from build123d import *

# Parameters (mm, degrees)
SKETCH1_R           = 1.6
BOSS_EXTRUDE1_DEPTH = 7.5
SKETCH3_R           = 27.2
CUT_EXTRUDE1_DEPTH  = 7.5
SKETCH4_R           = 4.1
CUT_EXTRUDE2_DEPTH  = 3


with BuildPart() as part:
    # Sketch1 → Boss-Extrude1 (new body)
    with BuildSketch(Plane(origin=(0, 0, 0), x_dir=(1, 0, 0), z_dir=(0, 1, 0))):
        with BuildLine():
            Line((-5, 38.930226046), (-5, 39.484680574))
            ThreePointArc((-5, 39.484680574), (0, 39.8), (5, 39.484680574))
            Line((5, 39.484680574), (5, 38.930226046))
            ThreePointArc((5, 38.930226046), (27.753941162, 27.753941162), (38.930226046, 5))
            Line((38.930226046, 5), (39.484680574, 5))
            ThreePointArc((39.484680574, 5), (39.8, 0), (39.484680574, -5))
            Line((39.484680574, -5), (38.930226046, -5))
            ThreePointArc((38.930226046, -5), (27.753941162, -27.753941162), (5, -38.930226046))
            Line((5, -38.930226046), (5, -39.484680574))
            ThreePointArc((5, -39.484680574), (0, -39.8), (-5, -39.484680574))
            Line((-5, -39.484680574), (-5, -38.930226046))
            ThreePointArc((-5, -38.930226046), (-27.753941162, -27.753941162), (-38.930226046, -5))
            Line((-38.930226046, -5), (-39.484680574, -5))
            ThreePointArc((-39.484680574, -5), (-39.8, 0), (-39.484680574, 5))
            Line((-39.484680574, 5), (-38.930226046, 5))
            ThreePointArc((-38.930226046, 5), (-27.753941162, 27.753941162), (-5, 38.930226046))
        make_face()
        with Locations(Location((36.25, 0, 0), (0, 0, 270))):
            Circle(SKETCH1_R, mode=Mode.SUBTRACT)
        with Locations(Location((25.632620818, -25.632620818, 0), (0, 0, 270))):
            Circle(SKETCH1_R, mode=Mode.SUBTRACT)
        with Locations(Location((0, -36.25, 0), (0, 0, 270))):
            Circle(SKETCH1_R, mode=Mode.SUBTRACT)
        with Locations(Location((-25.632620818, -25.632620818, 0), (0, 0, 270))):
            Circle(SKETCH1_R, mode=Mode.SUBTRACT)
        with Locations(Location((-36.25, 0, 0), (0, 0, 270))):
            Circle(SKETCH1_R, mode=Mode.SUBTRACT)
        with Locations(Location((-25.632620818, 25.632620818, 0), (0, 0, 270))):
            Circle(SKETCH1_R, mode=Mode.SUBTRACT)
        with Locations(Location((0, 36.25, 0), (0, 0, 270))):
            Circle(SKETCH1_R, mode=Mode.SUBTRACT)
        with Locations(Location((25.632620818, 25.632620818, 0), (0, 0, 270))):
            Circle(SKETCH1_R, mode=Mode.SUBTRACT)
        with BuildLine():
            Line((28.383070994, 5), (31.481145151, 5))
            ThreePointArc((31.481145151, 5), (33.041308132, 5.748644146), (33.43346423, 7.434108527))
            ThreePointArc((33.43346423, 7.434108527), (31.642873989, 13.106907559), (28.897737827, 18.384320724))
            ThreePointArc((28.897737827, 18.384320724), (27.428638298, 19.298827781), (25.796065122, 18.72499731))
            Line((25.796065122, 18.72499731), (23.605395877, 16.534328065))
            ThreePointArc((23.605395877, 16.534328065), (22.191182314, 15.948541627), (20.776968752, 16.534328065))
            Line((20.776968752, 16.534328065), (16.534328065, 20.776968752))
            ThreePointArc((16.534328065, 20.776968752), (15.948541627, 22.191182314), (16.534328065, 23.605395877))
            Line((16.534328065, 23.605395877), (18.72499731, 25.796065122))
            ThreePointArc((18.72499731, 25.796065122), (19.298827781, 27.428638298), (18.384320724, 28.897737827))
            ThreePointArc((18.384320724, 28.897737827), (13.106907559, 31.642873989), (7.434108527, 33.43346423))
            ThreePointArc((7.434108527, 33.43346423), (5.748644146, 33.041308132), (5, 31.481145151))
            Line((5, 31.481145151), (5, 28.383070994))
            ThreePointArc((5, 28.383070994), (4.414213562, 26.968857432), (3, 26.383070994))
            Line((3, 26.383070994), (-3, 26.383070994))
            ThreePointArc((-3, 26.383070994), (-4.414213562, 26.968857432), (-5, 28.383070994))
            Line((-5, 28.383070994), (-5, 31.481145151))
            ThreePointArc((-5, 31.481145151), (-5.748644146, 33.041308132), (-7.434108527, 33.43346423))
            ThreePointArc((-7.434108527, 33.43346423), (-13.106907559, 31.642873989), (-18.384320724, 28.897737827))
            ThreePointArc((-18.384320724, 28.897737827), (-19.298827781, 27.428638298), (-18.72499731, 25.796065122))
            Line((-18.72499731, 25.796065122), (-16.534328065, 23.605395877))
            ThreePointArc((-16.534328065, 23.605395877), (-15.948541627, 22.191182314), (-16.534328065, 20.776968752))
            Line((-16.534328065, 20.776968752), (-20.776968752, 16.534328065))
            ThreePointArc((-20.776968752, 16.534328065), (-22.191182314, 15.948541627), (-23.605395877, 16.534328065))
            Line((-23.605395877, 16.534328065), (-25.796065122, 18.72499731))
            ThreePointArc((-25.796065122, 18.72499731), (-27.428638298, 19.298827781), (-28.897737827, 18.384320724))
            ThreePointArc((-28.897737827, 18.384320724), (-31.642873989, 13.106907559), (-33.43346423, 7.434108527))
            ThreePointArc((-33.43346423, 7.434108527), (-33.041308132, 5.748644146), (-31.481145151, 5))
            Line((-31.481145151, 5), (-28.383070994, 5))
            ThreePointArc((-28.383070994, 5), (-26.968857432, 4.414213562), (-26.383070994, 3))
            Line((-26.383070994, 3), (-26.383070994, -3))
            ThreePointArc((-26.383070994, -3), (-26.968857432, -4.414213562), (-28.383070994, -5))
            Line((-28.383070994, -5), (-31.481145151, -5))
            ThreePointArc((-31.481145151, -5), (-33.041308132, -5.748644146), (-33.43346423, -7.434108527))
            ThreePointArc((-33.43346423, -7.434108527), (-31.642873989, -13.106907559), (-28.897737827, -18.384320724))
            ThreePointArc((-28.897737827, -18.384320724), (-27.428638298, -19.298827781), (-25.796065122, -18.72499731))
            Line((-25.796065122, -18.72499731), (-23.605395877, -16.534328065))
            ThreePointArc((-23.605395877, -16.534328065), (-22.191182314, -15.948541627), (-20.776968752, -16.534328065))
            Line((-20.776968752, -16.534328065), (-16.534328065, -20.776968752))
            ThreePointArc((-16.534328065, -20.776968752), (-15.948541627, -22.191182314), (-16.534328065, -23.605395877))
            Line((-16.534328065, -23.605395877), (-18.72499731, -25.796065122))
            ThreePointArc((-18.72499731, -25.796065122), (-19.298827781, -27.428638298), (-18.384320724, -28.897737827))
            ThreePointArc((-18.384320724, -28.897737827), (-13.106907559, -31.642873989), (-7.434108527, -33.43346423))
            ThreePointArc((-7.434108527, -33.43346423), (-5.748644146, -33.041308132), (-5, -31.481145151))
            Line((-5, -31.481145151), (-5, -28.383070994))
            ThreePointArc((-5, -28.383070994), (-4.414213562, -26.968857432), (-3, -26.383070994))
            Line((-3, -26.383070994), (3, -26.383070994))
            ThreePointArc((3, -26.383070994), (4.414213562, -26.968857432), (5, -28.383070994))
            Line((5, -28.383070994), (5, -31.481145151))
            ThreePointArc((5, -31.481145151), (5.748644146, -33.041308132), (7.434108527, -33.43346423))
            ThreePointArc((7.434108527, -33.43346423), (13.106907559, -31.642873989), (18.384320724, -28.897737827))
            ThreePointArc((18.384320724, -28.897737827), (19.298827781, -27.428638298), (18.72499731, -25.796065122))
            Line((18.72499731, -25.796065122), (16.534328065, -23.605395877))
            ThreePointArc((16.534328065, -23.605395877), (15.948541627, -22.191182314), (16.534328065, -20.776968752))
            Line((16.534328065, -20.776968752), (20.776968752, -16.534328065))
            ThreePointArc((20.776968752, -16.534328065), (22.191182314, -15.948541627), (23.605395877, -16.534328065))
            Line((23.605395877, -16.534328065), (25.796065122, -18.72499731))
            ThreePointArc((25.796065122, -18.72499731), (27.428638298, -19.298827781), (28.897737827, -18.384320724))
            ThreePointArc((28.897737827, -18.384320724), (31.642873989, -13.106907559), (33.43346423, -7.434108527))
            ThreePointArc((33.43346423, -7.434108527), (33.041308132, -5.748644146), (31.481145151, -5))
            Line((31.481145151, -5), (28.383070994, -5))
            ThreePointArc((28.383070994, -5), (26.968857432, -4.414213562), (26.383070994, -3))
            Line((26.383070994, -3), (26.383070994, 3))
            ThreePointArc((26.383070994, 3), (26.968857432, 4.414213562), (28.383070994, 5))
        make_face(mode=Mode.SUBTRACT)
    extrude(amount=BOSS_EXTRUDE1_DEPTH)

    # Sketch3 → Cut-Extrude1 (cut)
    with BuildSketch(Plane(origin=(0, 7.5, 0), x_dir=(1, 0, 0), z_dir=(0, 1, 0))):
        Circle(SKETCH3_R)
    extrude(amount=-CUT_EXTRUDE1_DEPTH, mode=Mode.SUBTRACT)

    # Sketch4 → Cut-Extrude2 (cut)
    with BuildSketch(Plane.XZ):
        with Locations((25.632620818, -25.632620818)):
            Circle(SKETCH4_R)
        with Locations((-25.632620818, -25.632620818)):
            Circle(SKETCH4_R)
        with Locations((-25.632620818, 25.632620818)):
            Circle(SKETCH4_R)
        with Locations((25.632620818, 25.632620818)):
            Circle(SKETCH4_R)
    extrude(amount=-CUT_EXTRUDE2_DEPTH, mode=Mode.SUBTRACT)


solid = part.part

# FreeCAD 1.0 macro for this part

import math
import FreeCAD as App
import Part
import Sketcher

V = App.Vector
Q = App.Units.Quantity

doc = App.newDocument("Part")
body = doc.addObject("PartDesign::Body", "Body")

sketch1 = doc.addObject("Sketcher::SketchObject", "Sketch")
body.addObject(sketch1)
sketch1.AttachmentSupport = (doc.XZ_Plane, [""])
sketch1.MapMode = "FlatFace"
sketch1.addGeometry([
    Part.LineSegment(V(-5, -39.5, 0), V(-5, -38.9, 0)),
    Part.ArcOfCircle(Part.Circle(V(0, 0, 0), V(0, 0, 1), 39.2), math.radians(-173), math.radians(-97)),
    Part.LineSegment(V(-38.9, -5, 0), V(-39.5, -5, 0)),
    Part.ArcOfCircle(Part.Circle(V(0, 0, 0), V(0, 0, 1), 39.8), math.radians(172.78), math.radians(187.22)),
    Part.LineSegment(V(-39.5, 5, 0), V(-38.9, 5, 0)),
    Part.ArcOfCircle(Part.Circle(V(0, 0, 0), V(0, 0, 1), 39.2), math.radians(97), math.radians(173)),
    Part.LineSegment(V(-5, 38.9, 0), V(-5, 39.5, 0)),
    Part.ArcOfCircle(Part.Circle(V(0, 0, 0), V(0, 0, 1), 39.8), math.radians(82.78), math.radians(97.22)),
    Part.LineSegment(V(5, 39.5, 0), V(5, 38.9, 0)),
    Part.ArcOfCircle(Part.Circle(V(0, 0, 0), V(0, 0, 1), 39.2), math.radians(7), math.radians(83)),
    Part.LineSegment(V(38.9, 5, 0), V(39.5, 5, 0)),
    Part.ArcOfCircle(Part.Circle(V(0, 0, 0), V(0, 0, 1), 39.8), math.radians(-7.22), math.radians(7.22)),
    Part.LineSegment(V(39.5, -5, 0), V(38.9, -5, 0)),
    Part.ArcOfCircle(Part.Circle(V(0, 0, 0), V(0, 0, 1), 39.2), math.radians(-83), math.radians(-7)),
    Part.LineSegment(V(5, -38.9, 0), V(5, -39.5, 0)),
    Part.ArcOfCircle(Part.Circle(V(0, 0, 0), V(0, 0, 1), 39.8), math.radians(-97.22), math.radians(-82.78)),
    Part.Circle(V(25.6, 25.6, 0), V(0, 0, 1), 1.6),
    Part.Circle(V(0, 36.2, 0), V(0, 0, 1), 1.6),
    Part.Circle(V(-25.6, 25.6, 0), V(0, 0, 1), 1.6),
    Part.Circle(V(36.2, 0, 0), V(0, 0, 1), 1.6),
    Part.Circle(V(25.6, -25.6, 0), V(0, 0, 1), 1.6),
    Part.ArcOfCircle(Part.Circle(V(28.4, -3, 0), V(0, 0, 1), 2), math.radians(-180), math.radians(-90)),
    Part.LineSegment(V(26.4, -3, 0), V(26.4, 3, 0)),
    Part.ArcOfCircle(Part.Circle(V(28.4, 3, 0), V(0, 0, 1), 2), math.radians(90), math.radians(180)),
    Part.LineSegment(V(28.4, 5, 0), V(31.5, 5, 0)),
    Part.ArcOfCircle(Part.Circle(V(31.5, 7, 0), V(0, 0, 1), 2), math.radians(-90), math.radians(13)),
    Part.ArcOfCircle(Part.Circle(V(0, 0, 0), V(0, 0, 1), 34.2), math.radians(12.54), math.radians(32.46)),
    Part.ArcOfCircle(Part.Circle(V(27.2, 17.3, 0), V(0, 0, 1), 2), math.radians(32), math.radians(135)),
    Part.LineSegment(V(25.8, 18.7, 0), V(23.6, 16.5, 0)),
    Part.ArcOfCircle(Part.Circle(V(22.2, 17.9, 0), V(0, 0, 1), 2), math.radians(-135), math.radians(-45)),
    Part.LineSegment(V(20.8, 16.5, 0), V(16.5, 20.8, 0)),
    Part.ArcOfCircle(Part.Circle(V(17.9, 22.2, 0), V(0, 0, 1), 2), math.radians(135), math.radians(225)),
    Part.LineSegment(V(16.5, 23.6, 0), V(18.7, 25.8, 0)),
    Part.ArcOfCircle(Part.Circle(V(17.3, 27.2, 0), V(0, 0, 1), 2), math.radians(-45), math.radians(58)),
    Part.ArcOfCircle(Part.Circle(V(0, 0, 0), V(0, 0, 1), 34.2), math.radians(57.54), math.radians(77.46)),
    Part.ArcOfCircle(Part.Circle(V(7, 31.5, 0), V(0, 0, 1), 2), math.radians(77), math.radians(180)),
    Part.LineSegment(V(5, 31.5, 0), V(5, 28.4, 0)),
    Part.ArcOfCircle(Part.Circle(V(3, 28.4, 0), V(0, 0, 1), 2), math.radians(-90), math.radians(0)),
    Part.LineSegment(V(3, 26.4, 0), V(-3, 26.4, 0)),
    Part.ArcOfCircle(Part.Circle(V(-3, 28.4, 0), V(0, 0, 1), 2), math.radians(-180), math.radians(-90)),
    Part.LineSegment(V(-5, 28.4, 0), V(-5, 31.5, 0)),
    Part.ArcOfCircle(Part.Circle(V(-7, 31.5, 0), V(0, 0, 1), 2), math.radians(0), math.radians(103)),
    Part.ArcOfCircle(Part.Circle(V(0, 0, 0), V(0, 0, 1), 34.2), math.radians(102.54), math.radians(122.46)),
    Part.ArcOfCircle(Part.Circle(V(-17.3, 27.2, 0), V(0, 0, 1), 2), math.radians(122), math.radians(225)),
    Part.LineSegment(V(-18.7, 25.8, 0), V(-16.5, 23.6, 0)),
    Part.ArcOfCircle(Part.Circle(V(-17.9, 22.2, 0), V(0, 0, 1), 2), math.radians(-45), math.radians(45)),
    Part.LineSegment(V(-16.5, 20.8, 0), V(-20.8, 16.5, 0)),
    Part.ArcOfCircle(Part.Circle(V(-22.2, 17.9, 0), V(0, 0, 1), 2), math.radians(-135), math.radians(-45)),
    Part.LineSegment(V(-23.6, 16.5, 0), V(-25.8, 18.7, 0)),
    Part.ArcOfCircle(Part.Circle(V(-27.2, 17.3, 0), V(0, 0, 1), 2), math.radians(45), math.radians(148)),
    Part.ArcOfCircle(Part.Circle(V(0, 0, 0), V(0, 0, 1), 34.2), math.radians(147.54), math.radians(167.46)),
    Part.ArcOfCircle(Part.Circle(V(-31.5, 7, 0), V(0, 0, 1), 2), math.radians(167), math.radians(270)),
    Part.LineSegment(V(-31.5, 5, 0), V(-28.4, 5, 0)),
    Part.ArcOfCircle(Part.Circle(V(-28.4, 3, 0), V(0, 0, 1), 2), math.radians(0), math.radians(90)),
    Part.LineSegment(V(-26.4, 3, 0), V(-26.4, -3, 0)),
    Part.ArcOfCircle(Part.Circle(V(-28.4, -3, 0), V(0, 0, 1), 2), math.radians(-90), math.radians(0)),
    Part.LineSegment(V(-28.4, -5, 0), V(-31.5, -5, 0)),
    Part.ArcOfCircle(Part.Circle(V(-31.5, -7, 0), V(0, 0, 1), 2), math.radians(90), math.radians(193)),
    Part.ArcOfCircle(Part.Circle(V(0, 0, 0), V(0, 0, 1), 34.2), math.radians(-167.46), math.radians(-147.54)),
    Part.ArcOfCircle(Part.Circle(V(-27.2, -17.3, 0), V(0, 0, 1), 2), math.radians(-148), math.radians(-45)),
    Part.LineSegment(V(-25.8, -18.7, 0), V(-23.6, -16.5, 0)),
    Part.ArcOfCircle(Part.Circle(V(-22.2, -17.9, 0), V(0, 0, 1), 2), math.radians(45), math.radians(135)),
    Part.LineSegment(V(-20.8, -16.5, 0), V(-16.5, -20.8, 0)),
    Part.ArcOfCircle(Part.Circle(V(-17.9, -22.2, 0), V(0, 0, 1), 2), math.radians(-45), math.radians(45)),
    Part.LineSegment(V(-16.5, -23.6, 0), V(-18.7, -25.8, 0)),
    Part.ArcOfCircle(Part.Circle(V(-17.3, -27.2, 0), V(0, 0, 1), 2), math.radians(135), math.radians(238)),
    Part.ArcOfCircle(Part.Circle(V(0, 0, 0), V(0, 0, 1), 34.2), math.radians(-122.46), math.radians(-102.54)),
    Part.ArcOfCircle(Part.Circle(V(-7, -31.5, 0), V(0, 0, 1), 2), math.radians(-103), math.radians(0)),
    Part.LineSegment(V(-5, -31.5, 0), V(-5, -28.4, 0)),
    Part.ArcOfCircle(Part.Circle(V(-3, -28.4, 0), V(0, 0, 1), 2), math.radians(90), math.radians(180)),
    Part.LineSegment(V(-3, -26.4, 0), V(3, -26.4, 0)),
    Part.ArcOfCircle(Part.Circle(V(3, -28.4, 0), V(0, 0, 1), 2), math.radians(0), math.radians(90)),
    Part.LineSegment(V(5, -28.4, 0), V(5, -31.5, 0)),
    Part.ArcOfCircle(Part.Circle(V(7, -31.5, 0), V(0, 0, 1), 2), math.radians(180), math.radians(283)),
    Part.ArcOfCircle(Part.Circle(V(0, 0, 0), V(0, 0, 1), 34.2), math.radians(-77.46), math.radians(-57.54)),
    Part.ArcOfCircle(Part.Circle(V(17.3, -27.2, 0), V(0, 0, 1), 2), math.radians(-58), math.radians(45)),
    Part.LineSegment(V(18.7, -25.8, 0), V(16.5, -23.6, 0)),
    Part.ArcOfCircle(Part.Circle(V(17.9, -22.2, 0), V(0, 0, 1), 2), math.radians(135), math.radians(225)),
    Part.LineSegment(V(16.5, -20.8, 0), V(20.8, -16.5, 0)),
    Part.ArcOfCircle(Part.Circle(V(22.2, -17.9, 0), V(0, 0, 1), 2), math.radians(45), math.radians(135)),
    Part.LineSegment(V(23.6, -16.5, 0), V(25.8, -18.7, 0)),
    Part.ArcOfCircle(Part.Circle(V(27.2, -17.3, 0), V(0, 0, 1), 2), math.radians(-135), math.radians(-32)),
    Part.ArcOfCircle(Part.Circle(V(0, 0, 0), V(0, 0, 1), 34.2), math.radians(-32.46), math.radians(-12.54)),
    Part.ArcOfCircle(Part.Circle(V(31.5, -7, 0), V(0, 0, 1), 2), math.radians(-13), math.radians(90)),
    Part.LineSegment(V(31.5, -5, 0), V(28.4, -5, 0)),
    Part.Circle(V(-36.2, 0, 0), V(0, 0, 1), 1.6),
    Part.Circle(V(0, -36.2, 0), V(0, 0, 1), 1.6),
    Part.Circle(V(-25.6, -25.6, 0), V(0, 0, 1), 1.6),
], False)
sketch1.addConstraint([
    Sketcher.Constraint("Coincident", 0, 2, 1, 2),
    Sketcher.Constraint("Coincident", 1, 1, 2, 1),
    Sketcher.Constraint("Coincident", 2, 2, 3, 2),
    Sketcher.Constraint("Coincident", 3, 1, 4, 1),
    Sketcher.Constraint("Coincident", 4, 2, 5, 2),
    Sketcher.Constraint("Coincident", 5, 1, 6, 1),
    Sketcher.Constraint("Coincident", 6, 2, 7, 2),
    Sketcher.Constraint("Coincident", 7, 1, 8, 1),
    Sketcher.Constraint("Coincident", 8, 2, 9, 2),
    Sketcher.Constraint("Coincident", 9, 1, 10, 1),
    Sketcher.Constraint("Coincident", 10, 2, 11, 2),
    Sketcher.Constraint("Coincident", 11, 1, 12, 1),
    Sketcher.Constraint("Coincident", 12, 2, 13, 2),
    Sketcher.Constraint("Coincident", 13, 1, 14, 1),
    Sketcher.Constraint("Coincident", 14, 2, 15, 2),
    Sketcher.Constraint("Coincident", 15, 1, 0, 1),
    Sketcher.Constraint("Tangent", 21, 1, 22, 1),
    Sketcher.Constraint("Tangent", 22, 2, 23, 2),
    Sketcher.Constraint("Tangent", 23, 1, 24, 1),
    Sketcher.Constraint("Tangent", 24, 2, 25, 1),
    Sketcher.Constraint("Tangent", 25, 2, 26, 1),
    Sketcher.Constraint("Tangent", 26, 2, 27, 1),
    Sketcher.Constraint("Tangent", 27, 2, 28, 1),
    Sketcher.Constraint("Tangent", 28, 2, 29, 2),
    Sketcher.Constraint("Tangent", 29, 1, 30, 1),
    Sketcher.Constraint("Tangent", 30, 2, 31, 2),
    Sketcher.Constraint("Tangent", 31, 1, 32, 1),
    Sketcher.Constraint("Tangent", 32, 2, 33, 1),
    Sketcher.Constraint("Tangent", 33, 2, 34, 1),
    Sketcher.Constraint("Tangent", 34, 2, 35, 1),
    Sketcher.Constraint("Tangent", 35, 2, 36, 1),
    Sketcher.Constraint("Tangent", 36, 2, 37, 2),
    Sketcher.Constraint("Tangent", 37, 1, 38, 1),
    Sketcher.Constraint("Tangent", 38, 2, 39, 2),
    Sketcher.Constraint("Tangent", 39, 1, 40, 1),
    Sketcher.Constraint("Tangent", 40, 2, 41, 1),
    Sketcher.Constraint("Tangent", 41, 2, 42, 1),
    Sketcher.Constraint("Tangent", 42, 2, 43, 1),
    Sketcher.Constraint("Tangent", 43, 2, 44, 1),
    Sketcher.Constraint("Tangent", 44, 2, 45, 2),
    Sketcher.Constraint("Tangent", 45, 1, 46, 1),
    Sketcher.Constraint("Tangent", 46, 2, 47, 2),
    Sketcher.Constraint("Tangent", 47, 1, 48, 1),
    Sketcher.Constraint("Tangent", 48, 2, 49, 1),
    Sketcher.Constraint("Tangent", 49, 2, 50, 1),
    Sketcher.Constraint("Tangent", 50, 2, 51, 1),
    Sketcher.Constraint("Tangent", 51, 2, 52, 1),
    Sketcher.Constraint("Tangent", 52, 2, 53, 2),
    Sketcher.Constraint("Tangent", 53, 1, 54, 1),
    Sketcher.Constraint("Tangent", 54, 2, 55, 2),
    Sketcher.Constraint("Tangent", 55, 1, 56, 1),
    Sketcher.Constraint("Tangent", 56, 2, 57, 1),
    Sketcher.Constraint("Tangent", 57, 2, 58, 1),
    Sketcher.Constraint("Tangent", 58, 2, 59, 1),
    Sketcher.Constraint("Tangent", 59, 2, 60, 1),
    Sketcher.Constraint("Tangent", 60, 2, 61, 2),
    Sketcher.Constraint("Tangent", 61, 1, 62, 1),
    Sketcher.Constraint("Tangent", 62, 2, 63, 2),
    Sketcher.Constraint("Tangent", 63, 1, 64, 1),
    Sketcher.Constraint("Tangent", 64, 2, 65, 1),
    Sketcher.Constraint("Tangent", 65, 2, 66, 1),
    Sketcher.Constraint("Tangent", 66, 2, 67, 1),
    Sketcher.Constraint("Tangent", 67, 2, 68, 1),
    Sketcher.Constraint("Tangent", 68, 2, 69, 2),
    Sketcher.Constraint("Tangent", 69, 1, 70, 1),
    Sketcher.Constraint("Tangent", 70, 2, 71, 2),
    Sketcher.Constraint("Tangent", 71, 1, 72, 1),
    Sketcher.Constraint("Tangent", 72, 2, 73, 1),
    Sketcher.Constraint("Tangent", 73, 2, 74, 1),
    Sketcher.Constraint("Tangent", 74, 2, 75, 1),
    Sketcher.Constraint("Tangent", 75, 2, 76, 1),
    Sketcher.Constraint("Tangent", 76, 2, 77, 2),
    Sketcher.Constraint("Tangent", 77, 1, 78, 1),
    Sketcher.Constraint("Tangent", 78, 2, 79, 2),
    Sketcher.Constraint("Tangent", 79, 1, 80, 1),
    Sketcher.Constraint("Tangent", 80, 2, 81, 1),
    Sketcher.Constraint("Tangent", 81, 2, 82, 1),
    Sketcher.Constraint("Tangent", 82, 2, 83, 1),
    Sketcher.Constraint("Tangent", 83, 2, 84, 1),
    Sketcher.Constraint("Tangent", 84, 2, 21, 2),
    Sketcher.Constraint("Vertical", 0),
    Sketcher.Constraint("Horizontal", 2),
    Sketcher.Constraint("Horizontal", 4),
    Sketcher.Constraint("Vertical", 6),
    Sketcher.Constraint("Vertical", 8),
    Sketcher.Constraint("Horizontal", 10),
    Sketcher.Constraint("Horizontal", 12),
    Sketcher.Constraint("Vertical", 14),
    Sketcher.Constraint("Vertical", 22),
    Sketcher.Constraint("Horizontal", 24),
    Sketcher.Constraint("Vertical", 36),
    Sketcher.Constraint("Horizontal", 38),
    Sketcher.Constraint("Vertical", 40),
    Sketcher.Constraint("Horizontal", 52),
    Sketcher.Constraint("Vertical", 54),
    Sketcher.Constraint("Horizontal", 56),
    Sketcher.Constraint("Vertical", 68),
    Sketcher.Constraint("Horizontal", 70),
    Sketcher.Constraint("Vertical", 72),
    Sketcher.Constraint("Horizontal", 84),
    Sketcher.Constraint("Coincident", 1, 3, -1, 1),
    Sketcher.Constraint("Coincident", 3, 3, -1, 1),
    Sketcher.Constraint("Coincident", 5, 3, -1, 1),
    Sketcher.Constraint("Coincident", 7, 3, -1, 1),
    Sketcher.Constraint("Coincident", 9, 3, -1, 1),
    Sketcher.Constraint("Coincident", 11, 3, -1, 1),
    Sketcher.Constraint("Coincident", 13, 3, -1, 1),
    Sketcher.Constraint("Coincident", 15, 3, -1, 1),
    Sketcher.Constraint("Coincident", 26, 3, -1, 1),
    Sketcher.Constraint("Coincident", 34, 3, -1, 1),
    Sketcher.Constraint("Coincident", 42, 3, -1, 1),
    Sketcher.Constraint("Coincident", 50, 3, -1, 1),
    Sketcher.Constraint("Coincident", 58, 3, -1, 1),
    Sketcher.Constraint("Coincident", 66, 3, -1, 1),
    Sketcher.Constraint("Coincident", 74, 3, -1, 1),
    Sketcher.Constraint("Coincident", 82, 3, -1, 1),
    Sketcher.Constraint("Equal", 1, 5),
    Sketcher.Constraint("Equal", 3, 7),
    Sketcher.Constraint("Equal", 5, 9),
    Sketcher.Constraint("Equal", 7, 11),
    Sketcher.Constraint("Equal", 9, 13),
    Sketcher.Constraint("Equal", 11, 15),
    Sketcher.Constraint("Equal", 16, 17),
    Sketcher.Constraint("Equal", 17, 18),
    Sketcher.Constraint("Equal", 18, 19),
    Sketcher.Constraint("Equal", 19, 20),
    Sketcher.Constraint("Equal", 21, 23),
    Sketcher.Constraint("Equal", 23, 25),
    Sketcher.Constraint("Equal", 25, 27),
    Sketcher.Constraint("Equal", 27, 29),
    Sketcher.Constraint("Equal", 29, 31),
    Sketcher.Constraint("Equal", 31, 33),
    Sketcher.Constraint("Equal", 26, 34),
    Sketcher.Constraint("Equal", 33, 35),
    Sketcher.Constraint("Equal", 35, 37),
    Sketcher.Constraint("Equal", 37, 39),
    Sketcher.Constraint("Equal", 39, 41),
    Sketcher.Constraint("Equal", 34, 42),
    Sketcher.Constraint("Equal", 41, 43),
    Sketcher.Constraint("Equal", 43, 45),
    Sketcher.Constraint("Equal", 45, 47),
    Sketcher.Constraint("Equal", 47, 49),
    Sketcher.Constraint("Equal", 42, 50),
    Sketcher.Constraint("Equal", 49, 51),
    Sketcher.Constraint("Equal", 51, 53),
    Sketcher.Constraint("Equal", 53, 55),
    Sketcher.Constraint("Equal", 55, 57),
    Sketcher.Constraint("Equal", 50, 58),
    Sketcher.Constraint("Equal", 57, 59),
    Sketcher.Constraint("Equal", 59, 61),
    Sketcher.Constraint("Equal", 61, 63),
    Sketcher.Constraint("Equal", 63, 65),
    Sketcher.Constraint("Equal", 58, 66),
    Sketcher.Constraint("Equal", 65, 67),
    Sketcher.Constraint("Equal", 67, 69),
    Sketcher.Constraint("Equal", 69, 71),
    Sketcher.Constraint("Equal", 71, 73),
    Sketcher.Constraint("Equal", 66, 74),
    Sketcher.Constraint("Equal", 73, 75),
    Sketcher.Constraint("Equal", 75, 77),
    Sketcher.Constraint("Equal", 77, 79),
    Sketcher.Constraint("Equal", 79, 81),
    Sketcher.Constraint("Equal", 74, 82),
    Sketcher.Constraint("Equal", 81, 83),
    Sketcher.Constraint("Equal", 20, 85),
    Sketcher.Constraint("Equal", 85, 86),
    Sketcher.Constraint("Equal", 86, 87),
    Sketcher.Constraint("Symmetric", 18, 3, 20, 3, -1, 1),
    Sketcher.Constraint("Symmetric", 21, 3, 53, 3, -1, 1),
    Sketcher.Constraint("Symmetric", 29, 3, 61, 3, -1, 1),
    Sketcher.Constraint("Symmetric", 31, 3, 63, 3, -1, 1),
    Sketcher.Constraint("Symmetric", 37, 3, 69, 3, -1, 1),
    Sketcher.Constraint("Symmetric", 45, 3, 77, 3, -1, 1),
    Sketcher.Constraint("Symmetric", 47, 3, 79, 3, -1, 1),
    Sketcher.Constraint("Symmetric", 19, 3, 85, 3, -1, 1),
    Sketcher.Constraint("Symmetric", 17, 3, 86, 3, -1, 1),
    Sketcher.Constraint("Symmetric", 16, 3, 87, 3, -1, 1),
    Sketcher.Constraint("Symmetric", 16, 3, 18, 3, -2),
    Sketcher.Constraint("Symmetric", 31, 3, 45, 3, -2),
    Sketcher.Constraint("Symmetric", 29, 3, 47, 3, -2),
    Sketcher.Constraint("PointOnObject", 17, 3, -2),
    Sketcher.Constraint("PointOnObject", 19, 3, -1),
    Sketcher.Constraint("Perpendicular", 28, 30),
    Sketcher.Constraint("Perpendicular", 30, 32),
    Sketcher.Constraint("Perpendicular", 32, 44),
    Sketcher.Constraint("Perpendicular", 44, 46),
    Sketcher.Constraint("Perpendicular", 46, 48),
    Sketcher.Constraint("Perpendicular", 48, 60),
    Sketcher.Constraint("Perpendicular", 62, 64),
    Sketcher.Constraint("Perpendicular", 64, 76),
    Sketcher.Constraint("Perpendicular", 78, 80),
    Sketcher.Constraint("Horizontal", 35, 3, 41, 3),
    Sketcher.Constraint("Horizontal", 25, 3, 51, 3),
    Sketcher.Constraint("Horizontal", 21, 3, 55, 3),
    Sketcher.Constraint("Horizontal", 67, 3, 73, 3),
    Sketcher.Constraint("Horizontal", 6, 2, 7, 1),
    Sketcher.Constraint("Horizontal", 4, 2, 9, 1),
    Sketcher.Constraint("Horizontal", 2, 2, 11, 1),
    Sketcher.Constraint("Horizontal", 0, 2, 13, 1),
    Sketcher.Constraint("Horizontal", 10, 2, 23, 1),
    Sketcher.Constraint("Horizontal", 12, 2, 55, 1),
    Sketcher.Constraint("Vertical", 0, 2, 5, 1),
    Sketcher.Constraint("Vertical", 14, 2, 35, 2),
    Sketcher.Constraint("Equal", 70, 22),
    Sketcher.Constraint("Equal", 84, 36),
    Sketcher.Constraint("Equal", 28, 32),
    Sketcher.Constraint("Radius", 21, Q("2 mm")),
    Sketcher.Constraint("Diameter", 16, Q("3.2 mm")),
    Sketcher.Constraint("Radius", 3, Q("39.8 mm")),
    Sketcher.Constraint("DistanceX", 38, 2, 38, 1, Q("6 mm")),
    Sketcher.Constraint("Radius", 1, Q("39.25 mm")),
    Sketcher.Constraint("Radius", 26, Q("34.25 mm")),
    Sketcher.Constraint("Distance", 30, Q("6 mm")),
    Sketcher.Constraint("DistanceY", -1, 1, 17, 3, Q("36.25 mm")),
    Sketcher.Constraint("DistanceX", -1, 1, 19, 3, Q("36.25 mm")),
    Sketcher.Constraint("DistanceX", 24, 1, 24, 2, Q("3.098074 mm")),
    Sketcher.Constraint("DistanceX", -1, 1, 16, 3, Q("25.632621 mm")),
    Sketcher.Constraint("DistanceY", -1, 1, 16, 3, Q("25.632621 mm")),
    Sketcher.Constraint("DistanceY", -1, 1, 29, 3, Q("17.948542 mm")),
])
pad1 = doc.addObject("PartDesign::Pad", "Pad")
body.addObject(pad1)
pad1.Profile = sketch1
pad1.Length = 7.5
pad1.Reversed = True

sketch2 = doc.addObject("Sketcher::SketchObject", "Sketch001")
body.addObject(sketch2)
sketch2.AttachmentSupport = (doc.XZ_Plane, [""])
sketch2.MapMode = "FlatFace"
sketch2.AttachmentOffset = App.Placement(V(0, 0, -7.5), App.Rotation())
sketch2.addGeometry(Part.Circle(V(0, 0, 0), V(0, 0, 1), 27), False)
sketch2.addConstraint([
    Sketcher.Constraint("Coincident", 0, 3, -1, 1),
    Sketcher.Constraint("Diameter", 0, Q("54.4 mm")),
])
pocket1 = doc.addObject("PartDesign::Pocket", "Pocket")
body.addObject(pocket1)
pocket1.Profile = sketch2
pocket1.Length = 7.5
pocket1.Reversed = True

sketch3 = doc.addObject("Sketcher::SketchObject", "Sketch002")
body.addObject(sketch3)
sketch3.AttachmentSupport = (doc.XZ_Plane, [""])
sketch3.MapMode = "FlatFace"
sketch3.addGeometry([
    Part.Circle(V(25.6, -25.6, 0), V(0, 0, 1), 4.1),
    Part.Circle(V(-25.6, -25.6, 0), V(0, 0, 1), 4.1),
    Part.Circle(V(-25.6, 25.6, 0), V(0, 0, 1), 4.1),
    Part.Circle(V(25.6, 25.6, 0), V(0, 0, 1), 4.1),
], False)
sketch3.addConstraint([
    Sketcher.Constraint("Equal", 0, 1),
    Sketcher.Constraint("Equal", 1, 2),
    Sketcher.Constraint("Equal", 2, 3),
    Sketcher.Constraint("Symmetric", 0, 3, 2, 3, -1, 1),
    Sketcher.Constraint("Symmetric", 1, 3, 3, 3, -1, 1),
    Sketcher.Constraint("Symmetric", 0, 3, 1, 3, -2),
    Sketcher.Constraint("Diameter", 0, Q("8.2 mm")),
    Sketcher.Constraint("DistanceX", -1, 1, 0, 3, Q("25.632621 mm")),
    Sketcher.Constraint("DistanceY", 0, 3, -1, 1, Q("25.632621 mm")),
])
pocket2 = doc.addObject("PartDesign::Pocket", "Pocket001")
body.addObject(pocket2)
pocket2.Profile = sketch3
pocket2.Length = 3

doc.recompute()
